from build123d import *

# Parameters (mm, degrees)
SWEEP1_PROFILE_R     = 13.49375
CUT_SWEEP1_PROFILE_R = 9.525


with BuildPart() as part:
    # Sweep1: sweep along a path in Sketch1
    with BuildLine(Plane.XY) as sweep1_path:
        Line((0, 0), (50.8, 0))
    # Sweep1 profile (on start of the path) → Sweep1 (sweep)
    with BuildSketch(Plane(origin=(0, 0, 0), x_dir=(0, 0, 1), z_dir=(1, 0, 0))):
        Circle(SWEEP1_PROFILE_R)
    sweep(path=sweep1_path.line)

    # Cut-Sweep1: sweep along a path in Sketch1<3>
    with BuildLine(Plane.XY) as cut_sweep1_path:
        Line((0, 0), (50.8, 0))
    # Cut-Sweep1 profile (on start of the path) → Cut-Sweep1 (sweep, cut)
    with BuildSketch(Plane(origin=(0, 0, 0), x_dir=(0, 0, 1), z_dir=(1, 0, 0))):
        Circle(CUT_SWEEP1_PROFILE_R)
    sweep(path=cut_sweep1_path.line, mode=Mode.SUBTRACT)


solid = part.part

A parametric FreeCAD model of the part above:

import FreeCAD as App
import Part
import Sketcher
Q = App.Units.Quantity

doc = App.newDocument("Part")
params = doc.addObject("Spreadsheet::Sheet", "Params")
for row, (alias, value) in enumerate([
    ("sketch1_diameter", "1.0625 in"),
    ("sketch2_width", "2 in"),
    ("sketch3_diameter", "0.75 in"),
    ("sketch4_width", "2 in"),
], start=1):
    params.set(f"A{row}", alias)
    params.set(f"B{row}", "=" + value)
    params.setAlias(f"B{row}", alias)

body = doc.addObject("PartDesign::Body", "Body")

# Sketch on YZ plane
sketch1 = body.newObject("Sketcher::SketchObject", "Sketch")
sketch1.AttachmentSupport = (doc.getObject("YZ_Plane"), [""])
sketch1.MapMode = "FlatFace"
sketch1.addGeometry(Part.Circle(App.Vector(0, 0, 0), App.Vector(0, 0, 1), 13), False)
sketch1.addConstraint([
    Sketcher.Constraint("Coincident", 0, 3, -1, 1),
    Sketcher.Constraint("Diameter", 0, Q("1.0625 in")),
])
sketch1.setExpression("Constraints[1]", "Params.sketch1_diameter")

# Sketch on XY plane
sketch2 = body.newObject("Sketcher::SketchObject", "Sketch001")
sketch2.AttachmentSupport = (doc.getObject("XY_Plane"), [""])
sketch2.MapMode = "FlatFace"
sketch2.addGeometry(Part.LineSegment(App.Vector(0, 0, 0), App.Vector(51, 0, 0)), False)
sketch2.addConstraint([
    Sketcher.Constraint("Horizontal", 0),
    Sketcher.Constraint("Coincident", 0, 1, -1, 1),
    Sketcher.Constraint("DistanceX", 0, 1, 0, 2, Q("2 in")),
])
sketch2.setExpression("Constraints[2]", "Params.sketch2_width")
doc.recompute()

additivepipe = body.newObject("PartDesign::AdditivePipe", "AdditivePipe")
additivepipe.Profile = sketch1
additivepipe.Spine = (sketch2, ["Edge1"])

# Sketch on YZ plane
sketch3 = body.newObject("Sketcher::SketchObject", "Sketch002")
sketch3.AttachmentSupport = (doc.getObject("YZ_Plane"), [""])
sketch3.MapMode = "FlatFace"
sketch3.addGeometry(Part.Circle(App.Vector(0, 0, 0), App.Vector(0, 0, 1), 10), False)
sketch3.addConstraint([
    Sketcher.Constraint("Coincident", 0, 3, -1, 1),
    Sketcher.Constraint("Diameter", 0, Q("0.75 in")),
])
sketch3.setExpression("Constraints[1]", "Params.sketch3_diameter")

# Sketch on XY plane
sketch4 = body.newObject("Sketcher::SketchObject", "Sketch003")
sketch4.AttachmentSupport = (doc.getObject("XY_Plane"), [""])
sketch4.MapMode = "FlatFace"
sketch4.addGeometry(Part.LineSegment(App.Vector(0, 0, 0), App.Vector(51, 0, 0)), False)
sketch4.addConstraint([
    Sketcher.Constraint("Horizontal", 0),
    Sketcher.Constraint("Coincident", 0, 1, -1, 1),
    Sketcher.Constraint("DistanceX", 0, 1, 0, 2, Q("2 in")),
])
sketch4.setExpression("Constraints[2]", "Params.sketch4_width")
doc.recompute()

subtractivepipe = body.newObject("PartDesign::SubtractivePipe", "SubtractivePipe")
subtractivepipe.Profile = sketch3
subtractivepipe.Spine = (sketch4, ["Edge1"])

doc.recompute()
